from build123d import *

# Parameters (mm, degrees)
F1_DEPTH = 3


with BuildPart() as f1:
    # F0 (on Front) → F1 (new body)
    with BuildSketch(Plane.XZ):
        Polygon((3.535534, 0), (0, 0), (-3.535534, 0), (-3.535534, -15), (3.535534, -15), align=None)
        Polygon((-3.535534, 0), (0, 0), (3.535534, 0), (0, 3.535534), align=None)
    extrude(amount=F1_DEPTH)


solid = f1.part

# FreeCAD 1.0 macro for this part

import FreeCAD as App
import Part
import Sketcher
Q = App.Units.Quantity

doc = App.newDocument("Part")
body = doc.addObject("PartDesign::Body", "Body")

sketch1 = doc.addObject("Sketcher::SketchObject", "Sketch")
body.addObject(sketch1)
sketch1.AttachmentSupport = (doc.XZ_Plane, [""])
sketch1.MapMode = "FlatFace"
sketch1.addGeometry(Part.LineSegment(App.Vector(-4, 0, 0), App.Vector(-4, -15, 0)), False)
sketch1.addGeometry(Part.LineSegment(App.Vector(-4, -15, 0), App.Vector(4, -15, 0)), False)
sketch1.addGeometry(Part.LineSegment(App.Vector(4, -15, 0), App.Vector(4, 0, 0)), False)
sketch1.addGeometry(Part.LineSegment(App.Vector(4, 0, 0), App.Vector(0, 4, 0)), False)
sketch1.addGeometry(Part.LineSegment(App.Vector(0, 4, 0), App.Vector(-4, 0, 0)), False)
sketch1.addConstraint(Sketcher.Constraint("Coincident", 0, 2, 1, 1))
sketch1.addConstraint(Sketcher.Constraint("Coincident", 1, 2, 2, 1))
sketch1.addConstraint(Sketcher.Constraint("Coincident", 2, 2, 3, 1))
sketch1.addConstraint(Sketcher.Constraint("Coincident", 3, 2, 4, 1))
sketch1.addConstraint(Sketcher.Constraint("Coincident", 4, 2, 0, 1))
sketch1.addConstraint(Sketcher.Constraint("Vertical", 0))
sketch1.addConstraint(Sketcher.Constraint("Horizontal", 1))
sketch1.addConstraint(Sketcher.Constraint("Vertical", 2))
sketch1.addConstraint(Sketcher.Constraint("Symmetric", 2, 2, 4, 2, -1, 1))
sketch1.addConstraint(Sketcher.Constraint("PointOnObject", 2, 2, -1))
sketch1.addConstraint(Sketcher.Constraint("PointOnObject", 3, 2, -2))
sketch1.addConstraint(Sketcher.Constraint("Perpendicular", 3, 4))
sketch1.addConstraint(Sketcher.Constraint("DistanceY", 0, 2, 0, 1, Q("15 mm")))
sketch1.addConstraint(Sketcher.Constraint("Distance", 3, Q("5 mm")))
pad1 = doc.addObject("PartDesign::Pad", "Pad")
body.addObject(pad1)
pad1.Profile = sketch1
pad1.Length = 3

doc.recompute()
